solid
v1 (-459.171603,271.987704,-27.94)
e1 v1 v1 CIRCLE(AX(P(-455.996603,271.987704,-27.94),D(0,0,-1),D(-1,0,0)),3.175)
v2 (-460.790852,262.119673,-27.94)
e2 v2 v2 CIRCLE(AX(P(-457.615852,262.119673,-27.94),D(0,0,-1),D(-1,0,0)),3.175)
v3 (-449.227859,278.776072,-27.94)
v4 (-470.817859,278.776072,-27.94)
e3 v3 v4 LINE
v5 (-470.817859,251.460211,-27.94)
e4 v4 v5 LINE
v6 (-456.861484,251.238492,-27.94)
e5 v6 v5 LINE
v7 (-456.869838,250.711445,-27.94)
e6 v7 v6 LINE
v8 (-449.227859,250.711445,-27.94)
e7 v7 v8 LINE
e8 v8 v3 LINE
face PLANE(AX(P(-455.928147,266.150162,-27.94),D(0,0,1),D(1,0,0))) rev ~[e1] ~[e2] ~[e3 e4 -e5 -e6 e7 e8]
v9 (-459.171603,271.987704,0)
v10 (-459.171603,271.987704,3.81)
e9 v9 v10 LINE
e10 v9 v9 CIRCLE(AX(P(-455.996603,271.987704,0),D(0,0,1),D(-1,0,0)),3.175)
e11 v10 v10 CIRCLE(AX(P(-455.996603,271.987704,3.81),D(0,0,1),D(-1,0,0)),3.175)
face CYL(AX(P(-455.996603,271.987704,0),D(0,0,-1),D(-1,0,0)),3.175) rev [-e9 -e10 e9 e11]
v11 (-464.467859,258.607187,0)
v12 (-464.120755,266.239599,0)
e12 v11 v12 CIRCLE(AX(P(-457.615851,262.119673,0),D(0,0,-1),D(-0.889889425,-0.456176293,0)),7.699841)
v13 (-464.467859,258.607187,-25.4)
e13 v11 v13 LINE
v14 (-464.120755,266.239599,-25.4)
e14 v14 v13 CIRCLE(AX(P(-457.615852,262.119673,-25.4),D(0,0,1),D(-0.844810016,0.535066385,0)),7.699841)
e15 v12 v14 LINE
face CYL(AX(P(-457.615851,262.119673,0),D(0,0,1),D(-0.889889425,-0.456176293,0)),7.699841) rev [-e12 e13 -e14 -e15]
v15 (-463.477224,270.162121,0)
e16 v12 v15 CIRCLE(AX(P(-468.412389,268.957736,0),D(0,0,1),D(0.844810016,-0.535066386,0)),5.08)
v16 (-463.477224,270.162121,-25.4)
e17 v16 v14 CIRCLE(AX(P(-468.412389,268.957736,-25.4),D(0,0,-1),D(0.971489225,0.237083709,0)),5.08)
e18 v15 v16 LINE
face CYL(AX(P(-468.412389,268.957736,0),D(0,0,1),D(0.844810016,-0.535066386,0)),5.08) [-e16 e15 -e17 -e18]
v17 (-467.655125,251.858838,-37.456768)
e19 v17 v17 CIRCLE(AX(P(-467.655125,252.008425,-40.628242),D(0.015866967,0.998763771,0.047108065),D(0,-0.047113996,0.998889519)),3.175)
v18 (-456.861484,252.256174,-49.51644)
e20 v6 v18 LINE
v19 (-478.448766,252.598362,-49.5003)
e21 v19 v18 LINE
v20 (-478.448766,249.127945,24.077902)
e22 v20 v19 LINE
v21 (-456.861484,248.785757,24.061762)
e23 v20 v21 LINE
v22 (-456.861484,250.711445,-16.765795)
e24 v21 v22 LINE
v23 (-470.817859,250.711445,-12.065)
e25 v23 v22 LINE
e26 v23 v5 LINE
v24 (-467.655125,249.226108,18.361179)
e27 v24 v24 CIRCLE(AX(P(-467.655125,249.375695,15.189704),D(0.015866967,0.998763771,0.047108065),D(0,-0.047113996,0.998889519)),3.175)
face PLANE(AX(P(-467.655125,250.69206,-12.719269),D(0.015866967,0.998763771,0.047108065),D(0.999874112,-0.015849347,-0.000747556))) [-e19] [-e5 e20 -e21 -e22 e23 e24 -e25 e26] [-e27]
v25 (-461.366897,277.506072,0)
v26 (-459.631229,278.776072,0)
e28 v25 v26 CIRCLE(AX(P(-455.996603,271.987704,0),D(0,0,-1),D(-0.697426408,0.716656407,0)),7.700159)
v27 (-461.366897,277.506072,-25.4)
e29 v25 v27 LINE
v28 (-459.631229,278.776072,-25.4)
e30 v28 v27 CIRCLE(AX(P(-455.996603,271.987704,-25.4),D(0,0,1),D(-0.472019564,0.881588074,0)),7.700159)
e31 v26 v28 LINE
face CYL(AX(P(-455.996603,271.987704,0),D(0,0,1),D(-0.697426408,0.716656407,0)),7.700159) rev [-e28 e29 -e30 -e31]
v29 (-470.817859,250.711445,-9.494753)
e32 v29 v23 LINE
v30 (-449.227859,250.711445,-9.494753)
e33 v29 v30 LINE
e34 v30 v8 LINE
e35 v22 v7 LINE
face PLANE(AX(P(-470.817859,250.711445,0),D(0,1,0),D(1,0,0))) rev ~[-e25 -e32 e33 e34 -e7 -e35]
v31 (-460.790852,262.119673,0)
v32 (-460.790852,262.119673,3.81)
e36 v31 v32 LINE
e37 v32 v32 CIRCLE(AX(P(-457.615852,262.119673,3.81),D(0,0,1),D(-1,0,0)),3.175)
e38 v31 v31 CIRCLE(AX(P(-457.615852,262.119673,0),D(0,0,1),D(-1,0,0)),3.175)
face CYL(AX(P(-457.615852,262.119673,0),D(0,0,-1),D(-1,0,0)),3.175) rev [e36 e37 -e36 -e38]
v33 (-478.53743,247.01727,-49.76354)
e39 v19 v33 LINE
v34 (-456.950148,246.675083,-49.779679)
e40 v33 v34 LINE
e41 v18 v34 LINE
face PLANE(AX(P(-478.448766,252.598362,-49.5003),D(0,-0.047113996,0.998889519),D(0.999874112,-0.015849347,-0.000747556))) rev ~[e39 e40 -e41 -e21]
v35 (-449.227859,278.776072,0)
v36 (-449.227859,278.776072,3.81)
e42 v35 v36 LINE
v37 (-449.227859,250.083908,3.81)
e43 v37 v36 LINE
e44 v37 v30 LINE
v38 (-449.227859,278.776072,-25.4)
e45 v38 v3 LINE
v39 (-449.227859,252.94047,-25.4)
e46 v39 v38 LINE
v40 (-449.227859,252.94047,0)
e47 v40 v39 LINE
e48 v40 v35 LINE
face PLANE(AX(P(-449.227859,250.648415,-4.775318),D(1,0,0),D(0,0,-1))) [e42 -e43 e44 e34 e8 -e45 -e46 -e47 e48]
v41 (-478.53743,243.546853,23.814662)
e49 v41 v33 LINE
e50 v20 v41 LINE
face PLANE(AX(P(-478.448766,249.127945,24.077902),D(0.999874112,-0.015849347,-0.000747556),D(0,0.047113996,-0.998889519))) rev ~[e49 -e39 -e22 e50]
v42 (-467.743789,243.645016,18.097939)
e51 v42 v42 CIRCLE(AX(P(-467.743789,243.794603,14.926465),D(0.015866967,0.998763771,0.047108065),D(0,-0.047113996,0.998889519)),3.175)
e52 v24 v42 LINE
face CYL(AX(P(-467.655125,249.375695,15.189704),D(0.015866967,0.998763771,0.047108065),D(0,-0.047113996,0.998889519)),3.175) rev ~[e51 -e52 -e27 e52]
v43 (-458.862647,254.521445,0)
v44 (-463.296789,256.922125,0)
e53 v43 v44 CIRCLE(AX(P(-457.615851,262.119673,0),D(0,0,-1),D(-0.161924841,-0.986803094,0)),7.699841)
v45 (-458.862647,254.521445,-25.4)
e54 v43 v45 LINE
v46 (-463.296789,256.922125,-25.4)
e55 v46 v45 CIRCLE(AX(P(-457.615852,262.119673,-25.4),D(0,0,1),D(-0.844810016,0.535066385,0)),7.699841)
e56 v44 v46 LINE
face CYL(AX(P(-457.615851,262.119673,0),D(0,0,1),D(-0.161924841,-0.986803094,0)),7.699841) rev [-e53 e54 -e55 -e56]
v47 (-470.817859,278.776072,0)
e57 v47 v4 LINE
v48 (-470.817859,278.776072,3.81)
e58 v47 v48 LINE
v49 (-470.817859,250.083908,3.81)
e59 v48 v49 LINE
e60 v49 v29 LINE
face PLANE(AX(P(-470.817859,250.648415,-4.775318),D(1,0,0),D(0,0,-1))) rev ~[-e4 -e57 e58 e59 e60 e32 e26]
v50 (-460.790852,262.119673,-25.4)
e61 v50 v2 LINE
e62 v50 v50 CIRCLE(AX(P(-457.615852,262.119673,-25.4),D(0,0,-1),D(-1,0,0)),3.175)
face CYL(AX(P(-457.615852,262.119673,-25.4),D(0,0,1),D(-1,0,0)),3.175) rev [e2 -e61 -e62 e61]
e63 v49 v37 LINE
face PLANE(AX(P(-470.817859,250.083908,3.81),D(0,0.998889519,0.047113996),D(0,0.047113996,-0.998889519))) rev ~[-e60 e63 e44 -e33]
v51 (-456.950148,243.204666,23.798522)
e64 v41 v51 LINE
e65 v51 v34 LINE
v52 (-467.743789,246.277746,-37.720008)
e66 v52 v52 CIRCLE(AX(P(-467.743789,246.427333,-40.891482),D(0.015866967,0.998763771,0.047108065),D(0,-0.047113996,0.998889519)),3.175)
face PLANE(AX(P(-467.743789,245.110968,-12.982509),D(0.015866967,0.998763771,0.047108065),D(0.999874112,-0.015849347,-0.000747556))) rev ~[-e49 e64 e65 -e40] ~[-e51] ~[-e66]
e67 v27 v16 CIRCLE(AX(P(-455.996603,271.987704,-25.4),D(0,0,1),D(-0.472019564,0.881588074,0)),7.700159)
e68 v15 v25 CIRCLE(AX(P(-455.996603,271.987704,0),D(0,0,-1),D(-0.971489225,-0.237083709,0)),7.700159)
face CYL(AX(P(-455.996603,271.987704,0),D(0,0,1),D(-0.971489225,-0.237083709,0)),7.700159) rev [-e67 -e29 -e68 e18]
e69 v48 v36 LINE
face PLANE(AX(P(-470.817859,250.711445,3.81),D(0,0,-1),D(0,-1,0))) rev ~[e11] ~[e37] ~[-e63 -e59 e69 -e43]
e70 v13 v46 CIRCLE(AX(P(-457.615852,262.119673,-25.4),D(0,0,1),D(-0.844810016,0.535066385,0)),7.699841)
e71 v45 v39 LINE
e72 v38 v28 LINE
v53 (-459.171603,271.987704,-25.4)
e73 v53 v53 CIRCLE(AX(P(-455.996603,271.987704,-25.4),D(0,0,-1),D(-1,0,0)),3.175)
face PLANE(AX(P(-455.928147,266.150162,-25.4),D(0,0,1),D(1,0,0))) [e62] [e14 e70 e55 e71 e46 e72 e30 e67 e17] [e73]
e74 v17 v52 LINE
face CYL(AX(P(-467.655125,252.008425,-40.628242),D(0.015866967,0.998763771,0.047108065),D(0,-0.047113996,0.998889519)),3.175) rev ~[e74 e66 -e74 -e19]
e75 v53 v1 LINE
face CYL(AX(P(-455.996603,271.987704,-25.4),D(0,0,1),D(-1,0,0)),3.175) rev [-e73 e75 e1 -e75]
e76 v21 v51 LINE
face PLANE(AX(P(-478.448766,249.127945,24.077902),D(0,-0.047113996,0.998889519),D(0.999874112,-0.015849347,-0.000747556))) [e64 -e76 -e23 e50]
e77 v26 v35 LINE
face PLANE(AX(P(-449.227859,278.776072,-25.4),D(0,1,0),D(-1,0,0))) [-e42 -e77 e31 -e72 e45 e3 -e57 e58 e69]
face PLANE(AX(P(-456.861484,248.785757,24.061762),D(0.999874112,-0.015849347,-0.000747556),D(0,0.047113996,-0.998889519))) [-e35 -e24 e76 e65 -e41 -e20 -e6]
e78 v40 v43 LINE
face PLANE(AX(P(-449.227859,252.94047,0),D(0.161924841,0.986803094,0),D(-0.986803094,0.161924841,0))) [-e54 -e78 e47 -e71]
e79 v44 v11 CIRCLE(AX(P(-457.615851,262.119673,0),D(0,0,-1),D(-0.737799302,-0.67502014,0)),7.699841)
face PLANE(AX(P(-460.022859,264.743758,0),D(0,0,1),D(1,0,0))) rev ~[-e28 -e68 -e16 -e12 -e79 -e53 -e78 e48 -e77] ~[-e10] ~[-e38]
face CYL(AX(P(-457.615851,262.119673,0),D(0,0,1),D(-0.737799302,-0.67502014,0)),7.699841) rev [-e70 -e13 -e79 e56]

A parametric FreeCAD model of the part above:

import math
import FreeCAD as App
import Part
import Sketcher
from FreeCAD import Vector
Q = App.Units.Quantity


def add_polygon(sketch, points):
    """Adds a closed chain of lines whose ends are joined by coincident constraints."""
    first, n = sketch.GeometryCount, len(points)
    for a, b in zip(points, points[1:] + points[:1]):
        sketch.addGeometry(Part.LineSegment(App.Vector(*a, 0), App.Vector(*b, 0)), False)
    for i in range(n):
        sketch.addConstraint(Sketcher.Constraint("Coincident", first + i, 2, first + (i + 1) % n, 1))

doc = App.newDocument("Part")
body = doc.addObject("PartDesign::Body", "Body")

# Sketch on XY plane
sketch1 = doc.addObject("Sketcher::SketchObject", "Sketch")
body.addObject(sketch1)
sketch1.AttachmentSupport = (doc.XY_Plane, [""])
sketch1.MapMode = "FlatFace"
sketch1.addGeometry(Part.ArcOfCircle(Part.Circle(Vector(-455.996603, 271.987704, 0), Vector(0, 0, 1), 7.700159), math.radians(118.165471), math.radians(134.220887)), False)
sketch1.addGeometry(Part.LineSegment(Vector(-459.631229, 278.776072, 0), Vector(-470.817859, 278.776072, 0)), False)
sketch1.addGeometry(Part.LineSegment(Vector(-470.817859, 278.776072, 0), Vector(-470.817859, 250.711445, 0)), False)
sketch1.addGeometry(Part.LineSegment(Vector(-470.817859, 250.711445, 0), Vector(-449.227859, 250.711445, 0)), False)
sketch1.addGeometry(Part.LineSegment(Vector(-449.227859, 250.711445, 0), Vector(-449.227859, 252.94047, 0)), False)
sketch1.addGeometry(Part.LineSegment(Vector(-449.227859, 252.94047, 0), Vector(-458.862647, 254.521445, 0)), False)
sketch1.addGeometry(Part.ArcOfCircle(Part.Circle(Vector(-457.615851, 262.119673, 0), Vector(0, 0, 1), 7.699841), math.radians(-137.544286), math.radians(-99.318639)), False)
sketch1.addGeometry(Part.ArcOfCircle(Part.Circle(Vector(-457.615851, 262.119673, 0), Vector(0, 0, 1), 7.699841), math.radians(-152.859355), math.radians(-137.544286)), False)
sketch1.addGeometry(Part.ArcOfCircle(Part.Circle(Vector(-457.615851, 262.119673, 0), Vector(0, 0, 1), 7.699841), math.radians(147.651586), math.radians(207.140645)), False)
sketch1.addGeometry(Part.ArcOfCircle(Part.Circle(Vector(-468.412389, 268.957736, 0), Vector(0, 0, 1), 5.08), math.radians(-32.348414), math.radians(13.714482)), False)
sketch1.addGeometry(Part.ArcOfCircle(Part.Circle(Vector(-455.996603, 271.987704, 0), Vector(0, 0, 1), 7.700159), math.radians(134.220887), math.radians(193.714482)), False)
sketch1.addConstraint(Sketcher.Constraint("Coincident", 0, 1, 1, 1))
sketch1.addConstraint(Sketcher.Constraint("Coincident", 1, 2, 2, 1))
sketch1.addConstraint(Sketcher.Constraint("Coincident", 2, 2, 3, 1))
sketch1.addConstraint(Sketcher.Constraint("Coincident", 3, 2, 4, 1))
sketch1.addConstraint(Sketcher.Constraint("Coincident", 4, 2, 5, 1))
sketch1.addConstraint(Sketcher.Constraint("Tangent", 5, 2, 6, 2))
sketch1.addConstraint(Sketcher.Constraint("Tangent", 6, 1, 7, 2))
sketch1.addConstraint(Sketcher.Constraint("Tangent", 7, 1, 8, 2))
sketch1.addConstraint(Sketcher.Constraint("Tangent", 8, 1, 9, 1))
sketch1.addConstraint(Sketcher.Constraint("Tangent", 9, 2, 10, 2))
sketch1.addConstraint(Sketcher.Constraint("Tangent", 10, 1, 0, 2))
sketch1.addConstraint(Sketcher.Constraint("Horizontal", 1))
sketch1.addConstraint(Sketcher.Constraint("Vertical", 2))
sketch1.addConstraint(Sketcher.Constraint("Horizontal", 3))
sketch1.addConstraint(Sketcher.Constraint("Vertical", 4))
sketch1.addConstraint(Sketcher.Constraint("Coincident", 8, 3, 6, 3))
sketch1.addConstraint(Sketcher.Constraint("Equal", 0, 10))
sketch1.addConstraint(Sketcher.Constraint("Radius", 9, Q("0.2 in")))
sketch1.addConstraint(Sketcher.Constraint("DistanceX", 3, 1, 3, 2, Q("0.85 in")))
sketch1.addConstraint(Sketcher.Constraint("DistanceY", 3, 2, 5, 2, Q("0.15 in")))
sketch1.addConstraint(Sketcher.Constraint("DistanceY", 10, 1, 0, 1, Q("0.05 in")))
sketch1.addConstraint(Sketcher.Constraint("Radius", 0, Q("7.700159 mm")))
sketch1.addConstraint(Sketcher.Constraint("Radius", 6, Q("7.699841 mm")))
sketch1.addConstraint(Sketcher.Constraint("DistanceX", 1, 2, 1, 1, Q("11.18663 mm")))
sketch1.addConstraint(Sketcher.Constraint("DistanceY", -1, 1, 8, 1, Q("266.239599 mm")))
sketch1.addConstraint(Sketcher.Constraint("DistanceY", 7, 3, 0, 1, Q("16.656399 mm")))
sketch1.addConstraint(Sketcher.Constraint("DistanceY", 2, 2, 2, 1, Q("28.064626 mm")))
sketch1.addConstraint(Sketcher.Constraint("DistanceY", 4, 1, 4, 2, Q("2.229024 mm")))
sketch1.addConstraint(Sketcher.Constraint("DistanceX", 6, 3, -1, 1, Q("457.615851 mm")))
sketch1.addConstraint(Sketcher.Constraint("DistanceX", 9, 3, -1, 1, Q("468.412389 mm")))
sketch1.addConstraint(Sketcher.Constraint("DistanceX", 6, 1, -1, 1, Q("463.296789 mm")))
sketch1.addConstraint(Sketcher.Constraint("DistanceX", 7, 1, -1, 1, Q("464.467859 mm")))
pad1 = doc.addObject("PartDesign::Pad", "Pad")
body.addObject(pad1)
pad1.Profile = sketch1
pad1.Length = Q("1.1 in")
pad1.Reversed = True

# Sketch on XY plane
sketch2 = doc.addObject("Sketcher::SketchObject", "Sketch001")
body.addObject(sketch2)
sketch2.AttachmentSupport = (doc.XY_Plane, [""])
sketch2.MapMode = "FlatFace"
add_polygon(sketch2, [(-470.817859, 278.776072), (-470.817859, 250.711445), (-449.227859, 250.711445), (-449.227859, 278.776072)])  # lines 0-3
sketch2.addGeometry(Part.Circle(Vector(-457.615852, 262.119673, 0), Vector(0, 0, 1), 3.175), False)  # 4
sketch2.addGeometry(Part.Circle(Vector(-455.996603, 271.987704, 0), Vector(0, 0, 1), 3.175), False)  # 5
sketch2.addConstraint(Sketcher.Constraint("Vertical", 0))
sketch2.addConstraint(Sketcher.Constraint("Horizontal", 1))
sketch2.addConstraint(Sketcher.Constraint("Vertical", 2))
sketch2.addConstraint(Sketcher.Constraint("Horizontal", 3))
sketch2.addConstraint(Sketcher.Constraint("Equal", 4, 5))
sketch2.addConstraint(Sketcher.Constraint("Diameter", 4, Q("0.25 in")))
sketch2.addConstraint(Sketcher.Constraint("DistanceX", 1, 1, 1, 2, Q("0.85 in")))
sketch2.addConstraint(Sketcher.Constraint("DistanceY", 4, 3, 2, 2, Q("16.656399 mm")))
sketch2.addConstraint(Sketcher.Constraint("DistanceY", 0, 2, 0, 1, Q("28.064626 mm")))
sketch2.addConstraint(Sketcher.Constraint("DistanceX", 4, 3, -1, 1, Q("457.615852 mm")))
sketch2.addConstraint(Sketcher.Constraint("DistanceX", 0, 2, -1, 1, Q("470.817859 mm")))
sketch2.addConstraint(Sketcher.Constraint("DistanceY", -1, 1, 2, 2, Q("278.776072 mm")))
sketch2.addConstraint(Sketcher.Constraint("DistanceX", 4, 3, 5, 3, Q("1.619248 mm")))
sketch2.addConstraint(Sketcher.Constraint("DistanceY", 4, 3, 5, 3, Q("9.868031 mm")))
pad2 = doc.addObject("PartDesign::Pad", "Pad001")
body.addObject(pad2)
pad2.Profile = sketch2
pad2.Length = Q("0.15 in")

# Sketch on XY plane
sketch3 = doc.addObject("Sketcher::SketchObject", "Sketch002")
body.addObject(sketch3)
sketch3.AttachmentSupport = (doc.XY_Plane, [""])
sketch3.MapMode = "FlatFace"
sketch3.AttachmentOffset = App.Placement(Vector(0, 0, -1 * 25.4), App.Rotation())
sketch3.addGeometry(Part.LineSegment(Vector(-449.227859, 278.776072, 0), Vector(-449.227859, 252.94047, 0)), False)
sketch3.addGeometry(Part.LineSegment(Vector(-449.227859, 252.94047, 0), Vector(-458.862647, 254.521445, 0)), False)
sketch3.addGeometry(Part.ArcOfCircle(Part.Circle(Vector(-457.615852, 262.119673, 0), Vector(0, 0, 1), 7.699841), math.radians(147.651586), math.radians(260.681361)), False)
sketch3.addGeometry(Part.ArcOfCircle(Part.Circle(Vector(-468.412389, 268.957736, 0), Vector(0, 0, 1), 5.08), math.radians(-32.348414), math.radians(13.714482)), False)
sketch3.addGeometry(Part.ArcOfCircle(Part.Circle(Vector(-455.996603, 271.987704, 0), Vector(0, 0, 1), 7.700159), math.radians(118.165471), math.radians(193.714482)), False)
sketch3.addGeometry(Part.LineSegment(Vector(-459.631229, 278.776072, 0), Vector(-449.227859, 278.776072, 0)), False)
sketch3.addGeometry(Part.Circle(Vector(-457.615852, 262.119673, 0), Vector(0, 0, 1), 3.175), False)
sketch3.addGeometry(Part.Circle(Vector(-455.996603, 271.987704, 0), Vector(0, 0, 1), 3.175), False)
sketch3.addConstraint(Sketcher.Constraint("Coincident", 0, 2, 1, 1))
sketch3.addConstraint(Sketcher.Constraint("Tangent", 1, 2, 2, 2))
sketch3.addConstraint(Sketcher.Constraint("Tangent", 2, 1, 3, 1))
sketch3.addConstraint(Sketcher.Constraint("Tangent", 3, 2, 4, 2))
sketch3.addConstraint(Sketcher.Constraint("Coincident", 4, 1, 5, 1))
sketch3.addConstraint(Sketcher.Constraint("Coincident", 5, 2, 0, 1))
sketch3.addConstraint(Sketcher.Constraint("Vertical", 0))
sketch3.addConstraint(Sketcher.Constraint("Horizontal", 5))
sketch3.addConstraint(Sketcher.Constraint("Coincident", 6, 3, 2, 3))
sketch3.addConstraint(Sketcher.Constraint("Coincident", 7, 3, 4, 3))
sketch3.addConstraint(Sketcher.Constraint("Equal", 6, 7))
sketch3.addConstraint(Sketcher.Constraint("Radius", 3, Q("0.2 in")))
sketch3.addConstraint(Sketcher.Constraint("Diameter", 6, Q("0.25 in")))
sketch3.addConstraint(Sketcher.Constraint("Radius", 2, Q("7.699841 mm")))
sketch3.addConstraint(Sketcher.Constraint("Radius", 4, Q("7.700159 mm")))
sketch3.addConstraint(Sketcher.Constraint("DistanceY", 0, 2, 0, 1, Q("25.835602 mm")))
sketch3.addConstraint(Sketcher.Constraint("DistanceX", 5, 1, 5, 2, Q("10.40337 mm")))
sketch3.addConstraint(Sketcher.Constraint("DistanceY", -1, 1, 2, 1, Q("266.239599 mm")))
sketch3.addConstraint(Sketcher.Constraint("DistanceY", 2, 3, 5, 2, Q("16.656399 mm")))
sketch3.addConstraint(Sketcher.Constraint("DistanceX", 2, 3, -1, 1, Q("457.615852 mm")))
sketch3.addConstraint(Sketcher.Constraint("DistanceX", 3, 3, -1, 1, Q("468.412389 mm")))
sketch3.addConstraint(Sketcher.Constraint("DistanceX", 0, 2, -1, 1, Q("449.227859 mm")))
pad3 = doc.addObject("PartDesign::Pad", "Pad002")
body.addObject(pad3)
pad3.Profile = sketch3
pad3.Length = Q("0.1 in")
pad3.Reversed = True

# Sketch on an angled plane
sketch4 = doc.addObject("Sketcher::SketchObject", "Sketch003")
body.addObject(sketch4)
sketch4.Placement = App.Placement(Vector(3.845561, 242.063082, 11.417238), App.Rotation(Vector(0.999874112, -0.015849347, -0.000747556), Vector(0, 0.047113996, -0.99888952), Vector(0.015866967, 0.998763771, 0.047108065), "ZXY"))
add_polygon(sketch4, [(-482.35505, 61.346249), (-482.35505, -12.313751), (-460.76505, -12.313751), (-460.76505, 61.346249)])  # lines 0-3
sketch4.addGeometry(Part.Circle(Vector(-471.56005, -3.423751, 0), Vector(0, 0, 1), 3.175), False)  # 4
sketch4.addGeometry(Part.Circle(Vector(-471.56005, 52.456249, 0), Vector(0, 0, 1), 3.175), False)  # 5
sketch4.addConstraint(Sketcher.Constraint("Vertical", 0))
sketch4.addConstraint(Sketcher.Constraint("Horizontal", 1))
sketch4.addConstraint(Sketcher.Constraint("Vertical", 2))
sketch4.addConstraint(Sketcher.Constraint("Horizontal", 3))
sketch4.addConstraint(Sketcher.Constraint("Equal", 4, 5))
sketch4.addConstraint(Sketcher.Constraint("Vertical", 4, 3, 5, 3))
sketch4.addConstraint(Sketcher.Constraint("Diameter", 4, Q("0.25 in")))
sketch4.addConstraint(Sketcher.Constraint("DistanceY", 0, 2, 0, 1, Q("2.9 in")))
sketch4.addConstraint(Sketcher.Constraint("DistanceX", 1, 1, 1, 2, Q("0.85 in")))
sketch4.addConstraint(Sketcher.Constraint("DistanceY", 4, 3, 5, 3, Q("2.2 in")))
sketch4.addConstraint(Sketcher.Constraint("DistanceY", 0, 2, 4, 3, Q("0.35 in")))
sketch4.addConstraint(Sketcher.Constraint("DistanceX", 0, 2, 4, 3, Q("0.425 in")))
sketch4.addConstraint(Sketcher.Constraint("DistanceX", 4, 3, -1, 1, Q("471.56005 mm")))
sketch4.addConstraint(Sketcher.Constraint("DistanceY", 4, 3, -1, 1, Q("3.423751 mm")))
pad4 = doc.addObject("PartDesign::Pad", "Pad003")
body.addObject(pad4)
pad4.Profile = sketch4
pad4.Length = Q("0.22 in")
pad4.Reversed = True

# Sketch on YZ plane
sketch5 = doc.addObject("Sketcher::SketchObject", "Sketch004")
body.addObject(sketch5)
sketch5.AttachmentSupport = (doc.YZ_Plane, [""])
sketch5.MapMode = "FlatFace"
sketch5.AttachmentOffset = App.Placement(Vector(0, 0, -470.817859), App.Rotation())
add_polygon(sketch5, [(250.083908, 3.81), (250.711445, 3.81), (250.908315, -13.668693)])  # lines 0-2
sketch5.addConstraint(Sketcher.Constraint("Horizontal", 0))
sketch5.addConstraint(Sketcher.Constraint("DistanceY", -1, 1, 0, 2, Q("0.15 in")))
sketch5.addConstraint(Sketcher.Constraint("Distance", 1, Q("17.479802 mm")))
sketch5.addConstraint(Sketcher.Constraint("DistanceX", 0, 1, 0, 2, Q("0.627537 mm")))
sketch5.addConstraint(Sketcher.Constraint("DistanceX", -1, 1, 2, 2, Q("250.083908 mm")))
sketch5.addConstraint(Sketcher.Constraint("DistanceX", 0, 2, 1, 2, Q("0.19687 mm")))
pad5 = doc.addObject("PartDesign::Pad", "Pad004")
body.addObject(pad5)
pad5.Profile = sketch5
pad5.Length = Q("0.85 in")

doc.recompute()
